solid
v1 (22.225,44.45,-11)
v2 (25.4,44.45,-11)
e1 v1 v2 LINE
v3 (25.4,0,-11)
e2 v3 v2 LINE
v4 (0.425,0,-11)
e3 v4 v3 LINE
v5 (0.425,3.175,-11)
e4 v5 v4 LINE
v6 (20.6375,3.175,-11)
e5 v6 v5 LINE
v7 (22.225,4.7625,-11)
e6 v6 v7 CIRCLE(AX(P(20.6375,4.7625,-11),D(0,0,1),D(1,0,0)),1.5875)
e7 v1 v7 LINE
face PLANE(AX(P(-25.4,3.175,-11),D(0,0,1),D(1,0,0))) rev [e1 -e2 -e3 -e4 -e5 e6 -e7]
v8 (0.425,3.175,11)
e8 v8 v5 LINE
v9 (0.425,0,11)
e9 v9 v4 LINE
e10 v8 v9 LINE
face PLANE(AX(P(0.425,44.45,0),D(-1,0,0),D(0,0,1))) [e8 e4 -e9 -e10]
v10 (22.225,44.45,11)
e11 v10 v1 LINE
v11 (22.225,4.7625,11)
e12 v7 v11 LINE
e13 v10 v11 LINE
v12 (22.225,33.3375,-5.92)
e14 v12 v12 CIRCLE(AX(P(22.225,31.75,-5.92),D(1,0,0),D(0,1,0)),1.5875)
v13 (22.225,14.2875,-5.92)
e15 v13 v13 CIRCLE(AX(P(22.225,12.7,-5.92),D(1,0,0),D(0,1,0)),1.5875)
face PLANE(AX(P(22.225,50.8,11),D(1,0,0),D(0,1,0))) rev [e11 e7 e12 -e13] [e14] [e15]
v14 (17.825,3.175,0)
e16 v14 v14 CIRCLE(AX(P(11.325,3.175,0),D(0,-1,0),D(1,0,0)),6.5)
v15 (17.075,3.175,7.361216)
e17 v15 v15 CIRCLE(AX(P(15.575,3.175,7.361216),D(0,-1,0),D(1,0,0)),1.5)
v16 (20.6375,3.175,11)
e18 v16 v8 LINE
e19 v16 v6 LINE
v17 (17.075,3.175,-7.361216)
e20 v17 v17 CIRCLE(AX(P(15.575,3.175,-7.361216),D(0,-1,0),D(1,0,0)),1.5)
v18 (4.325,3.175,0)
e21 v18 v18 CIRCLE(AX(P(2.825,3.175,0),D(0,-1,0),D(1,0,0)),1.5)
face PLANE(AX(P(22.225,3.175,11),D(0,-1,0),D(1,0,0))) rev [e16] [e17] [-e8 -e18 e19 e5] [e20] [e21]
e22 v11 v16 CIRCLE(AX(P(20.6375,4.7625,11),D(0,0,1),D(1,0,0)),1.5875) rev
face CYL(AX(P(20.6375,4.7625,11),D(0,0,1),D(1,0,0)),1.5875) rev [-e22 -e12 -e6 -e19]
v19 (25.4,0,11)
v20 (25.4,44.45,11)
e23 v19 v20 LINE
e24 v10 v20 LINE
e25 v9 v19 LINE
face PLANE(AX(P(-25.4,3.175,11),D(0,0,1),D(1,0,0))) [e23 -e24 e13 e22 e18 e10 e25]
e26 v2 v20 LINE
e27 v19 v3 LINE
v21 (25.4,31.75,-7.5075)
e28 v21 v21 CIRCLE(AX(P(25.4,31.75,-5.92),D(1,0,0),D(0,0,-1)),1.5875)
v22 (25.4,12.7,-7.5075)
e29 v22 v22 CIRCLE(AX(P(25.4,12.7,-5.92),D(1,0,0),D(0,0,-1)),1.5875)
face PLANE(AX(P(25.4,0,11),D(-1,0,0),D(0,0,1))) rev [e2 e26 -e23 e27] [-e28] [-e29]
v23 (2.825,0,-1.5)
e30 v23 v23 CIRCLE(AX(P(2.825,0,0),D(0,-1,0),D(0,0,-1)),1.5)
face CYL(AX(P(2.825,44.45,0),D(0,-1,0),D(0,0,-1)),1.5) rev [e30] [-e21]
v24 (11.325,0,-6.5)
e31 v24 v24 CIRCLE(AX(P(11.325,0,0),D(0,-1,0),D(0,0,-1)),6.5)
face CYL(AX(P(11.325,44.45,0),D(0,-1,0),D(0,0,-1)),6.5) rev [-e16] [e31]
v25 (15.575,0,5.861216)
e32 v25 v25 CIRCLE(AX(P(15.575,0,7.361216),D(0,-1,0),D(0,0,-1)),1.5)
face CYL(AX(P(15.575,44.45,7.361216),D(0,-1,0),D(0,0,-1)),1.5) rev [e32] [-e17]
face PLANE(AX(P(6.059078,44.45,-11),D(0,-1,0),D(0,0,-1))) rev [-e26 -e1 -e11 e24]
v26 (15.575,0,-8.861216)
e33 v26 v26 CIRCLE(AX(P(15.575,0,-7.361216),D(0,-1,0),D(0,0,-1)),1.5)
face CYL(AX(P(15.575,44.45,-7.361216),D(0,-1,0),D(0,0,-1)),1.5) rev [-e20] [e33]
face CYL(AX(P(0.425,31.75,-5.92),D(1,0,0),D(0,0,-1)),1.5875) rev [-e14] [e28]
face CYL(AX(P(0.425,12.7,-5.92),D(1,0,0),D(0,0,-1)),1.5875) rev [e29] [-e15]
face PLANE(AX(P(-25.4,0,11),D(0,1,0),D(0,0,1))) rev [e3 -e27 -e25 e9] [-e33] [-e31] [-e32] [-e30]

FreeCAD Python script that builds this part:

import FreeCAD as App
import Part
import Sketcher

V = App.Vector


def edges_at(feature, points):
    """Names of the edges that pass closest to the given points."""
    edges = feature.Shape.Edges
    near = lambda p: min(range(len(edges)), key=lambda i: edges[i].distToShape(Part.Vertex(*p))[0])
    return sorted({f"Edge{near(p) + 1}" for p in points})


def add_polygon(sketch, points):
    """Adds a closed chain of lines whose ends are joined by coincident constraints."""
    first, n = sketch.GeometryCount, len(points)
    for a, b in zip(points, points[1:] + points[:1]):
        sketch.addGeometry(Part.LineSegment(App.Vector(*a, 0), App.Vector(*b, 0)), False)
    for i in range(n):
        sketch.addConstraint(Sketcher.Constraint("Coincident", first + i, 2, first + (i + 1) % n, 1))

doc = App.newDocument("Part")
body = doc.addObject("PartDesign::Body", "Body")

# Sketch on XY plane
sketch1 = body.newObject("Sketcher::SketchObject", "Sketch")
sketch1.AttachmentSupport = (doc.getObject("XY_Plane"), [""])
sketch1.MapMode = "FlatFace"
add_polygon(sketch1, [(-25.4, 0), (25.4, 0), (25.4, 50.8), (22.225, 50.8), (22.225, 3.175), (-25.4, 3.175)])  # lines 0-5
sketch1.addConstraint([
    Sketcher.Constraint("Horizontal", 0),
    Sketcher.Constraint("Vertical", 1),
    Sketcher.Constraint("Horizontal", 2),
    Sketcher.Constraint("Vertical", 3),
    Sketcher.Constraint("Horizontal", 4),
    Sketcher.Constraint("Vertical", 5),
    Sketcher.Constraint("Symmetric", 0, 2, 5, 2, -1, 1),
    Sketcher.Constraint("Equal", 0, 1),
    Sketcher.Constraint("Equal", 4, 3),
    Sketcher.Constraint("DistanceX", 0, 1, 0, 2, 50.8),
    Sketcher.Constraint("DistanceX", 2, 2, 2, 1, 3.175),
])
pad1 = body.newObject("PartDesign::Pad", "Pad")
pad1.Profile = sketch1
pad1.Length = 22
pad1.Midplane = True
doc.recompute()

fillet = body.newObject("PartDesign::Fillet", "Fillet")
fillet.Base = (pad1, edges_at(pad1, [(22.225, 3.175, 0)]))
fillet.Radius = 1.5875

# Sketch on XY plane
sketch2 = body.newObject("Sketcher::SketchObject", "Sketch001")
sketch2.AttachmentSupport = (doc.getObject("XY_Plane"), [""])
sketch2.MapMode = "FlatFace"
sketch2.AttachmentOffset = App.Placement(V(0, 0, 11), App.Rotation())
add_polygon(sketch2, [(6.059078, 71.002362), (6.059078, 44.45), (30.482991, 44.45), (30.482991, 71.002362)])  # lines 0-3
sketch2.addConstraint([
    Sketcher.Constraint("Vertical", 0),
    Sketcher.Constraint("Horizontal", 1),
    Sketcher.Constraint("Vertical", 2),
    Sketcher.Constraint("Horizontal", 3),
    Sketcher.Constraint("DistanceY", -1, 1, 0, 2, 44.45),
    Sketcher.Constraint("DistanceY", 0, 2, 0, 1, 26.552362),
    Sketcher.Constraint("DistanceX", 1, 1, 1, 2, 24.423913),
    Sketcher.Constraint("DistanceX", -1, 1, 1, 2, 30.482991),
])
pocket1 = body.newObject("PartDesign::Pocket", "Pocket")
pocket1.Profile = sketch2
pocket1.Type = "ThroughAll"

# Sketch on XZ plane
sketch3 = body.newObject("Sketcher::SketchObject", "Sketch002")
sketch3.AttachmentSupport = (doc.getObject("XZ_Plane"), [""])
sketch3.MapMode = "FlatFace"
sketch3.addGeometry(Part.Circle(V(15.575, -7.361216, 0), V(0, 0, 1), 1.5), False)  # 0
sketch3.addGeometry(Part.Circle(V(11.325, 0, 0), V(0, 0, 1), 6.5), False)  # 1
sketch3.addGeometry(Part.Circle(V(15.575, 7.361216, 0), V(0, 0, 1), 1.5), False)  # 2
add_polygon(sketch3, [(-25.4, 11), (-25.4, -11), (0.425, -11), (0.425, 11)])  # lines 3-6
sketch3.addGeometry(Part.Circle(V(2.825, 0, 0), V(0, 0, 1), 1.5), False)  # 7
sketch3.addConstraint([
    Sketcher.Constraint("Vertical", 3),
    Sketcher.Constraint("Horizontal", 4),
    Sketcher.Constraint("Vertical", 5),
    Sketcher.Constraint("Horizontal", 6),
    Sketcher.Constraint("Equal", 0, 2),
    Sketcher.Constraint("Equal", 2, 7),
    Sketcher.Constraint("Symmetric", 0, 3, 2, 3, -1),
    Sketcher.Constraint("PointOnObject", 1, 3, -1),
    Sketcher.Constraint("PointOnObject", 7, 3, -1),
    Sketcher.Constraint("Diameter", 0, 3.0),
    Sketcher.Constraint("Diameter", 1, 13.0),
    Sketcher.Constraint("DistanceY", 3, 2, 3, 1, 22.0),
    Sketcher.Constraint("DistanceY", 3, 2, -1, 1, 11.0),
    Sketcher.Constraint("DistanceX", 3, 2, -1, 1, 25.4),
    Sketcher.Constraint("DistanceX", 7, 3, 1, 3, 8.5),
    Sketcher.Constraint("DistanceX", 4, 2, 7, 3, 2.4),
    Sketcher.Constraint("DistanceX", 4, 1, 4, 2, 25.825),
    Sketcher.Constraint("DistanceX", 1, 3, 0, 3, 4.25),
    Sketcher.Constraint("DistanceY", 0, 3, 2, 3, 14.722432),
])
pocket2 = body.newObject("PartDesign::Pocket", "Pocket001")
pocket2.Profile = sketch3
pocket2.Type = "ThroughAll"

# Sketch on YZ plane
sketch4 = body.newObject("Sketcher::SketchObject", "Sketch003")
sketch4.AttachmentSupport = (doc.getObject("YZ_Plane"), [""])
sketch4.MapMode = "FlatFace"
sketch4.AttachmentOffset = App.Placement(V(0, 0, 25.4), App.Rotation())
sketch4.addGeometry([
    Part.Circle(V(31.75, -5.92, 0), V(0, 0, 1), 1.5875),
    Part.Circle(V(12.7, -5.92, 0), V(0, 0, 1), 1.5875),
], False)
sketch4.addConstraint([
    Sketcher.Constraint("Equal", 0, 1),
    Sketcher.Constraint("Horizontal", 0, 3, 1, 3),
    Sketcher.Constraint("Diameter", 0, 3.175),
    Sketcher.Constraint("DistanceX", -1, 1, 1, 3, 12.7),
    Sketcher.Constraint("DistanceX", -1, 1, 0, 3, 31.75),
    Sketcher.Constraint("DistanceY", 0, 3, -1, 1, 5.92),
])
pocket3 = body.newObject("PartDesign::Pocket", "Pocket002")
pocket3.Profile = sketch4
pocket3.Type = "ThroughAll"

doc.recompute()
